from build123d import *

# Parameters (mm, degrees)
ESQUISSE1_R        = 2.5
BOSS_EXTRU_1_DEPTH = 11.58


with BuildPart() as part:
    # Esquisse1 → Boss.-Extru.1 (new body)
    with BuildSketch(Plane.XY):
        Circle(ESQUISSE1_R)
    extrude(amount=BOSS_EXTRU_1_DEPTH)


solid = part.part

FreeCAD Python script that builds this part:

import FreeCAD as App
import Part
import Sketcher
from FreeCAD import Vector

doc = App.newDocument("Part")
body = doc.addObject("PartDesign::Body", "Body")

sketch1 = body.newObject("Sketcher::SketchObject", "Sketch")
sketch1.AttachmentSupport = (doc.getObject("XY_Plane"), [""])
sketch1.MapMode = "FlatFace"
sketch1.addGeometry(Part.Circle(Vector(0, 0, 0), Vector(0, 0, 1), 2.5), False)
sketch1.addConstraint(Sketcher.Constraint("Coincident", 0, 3, -1, 1))
sketch1.addConstraint(Sketcher.Constraint("Diameter", 0, 5.0))
pad1 = body.newObject("PartDesign::Pad", "Pad")
pad1.Profile = sketch1
pad1.Length = 11.58

doc.recompute()
